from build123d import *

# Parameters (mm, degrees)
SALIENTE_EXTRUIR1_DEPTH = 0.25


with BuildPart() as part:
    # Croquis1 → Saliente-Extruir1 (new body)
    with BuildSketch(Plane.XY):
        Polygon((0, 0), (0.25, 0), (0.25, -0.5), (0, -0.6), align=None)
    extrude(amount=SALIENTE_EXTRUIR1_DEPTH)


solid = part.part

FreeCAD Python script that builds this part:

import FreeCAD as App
import Part
import Sketcher


def add_polygon(sketch, points):
    """Adds a closed chain of lines whose ends are joined by coincident constraints."""
    first, n = sketch.GeometryCount, len(points)
    for a, b in zip(points, points[1:] + points[:1]):
        sketch.addGeometry(Part.LineSegment(App.Vector(*a, 0), App.Vector(*b, 0)), False)
    for i in range(n):
        sketch.addConstraint(Sketcher.Constraint("Coincident", first + i, 2, first + (i + 1) % n, 1))

doc = App.newDocument("Part")
params = doc.addObject("Spreadsheet::Sheet", "Params")
for row, (alias, value) in enumerate([
    ("sketch1_height", "0.6 mm"),
    ("sketch1_height2", "0.5 mm"),
    ("sketch1_width", "0.25 mm"),
    ("pad1_length", "0.25 mm"),
], start=1):
    params.set(f"A{row}", alias)
    params.set(f"B{row}", "=" + value)
    params.setAlias(f"B{row}", alias)

body = doc.addObject("PartDesign::Body", "Body")

# Sketch on XY plane
sketch1 = body.newObject("Sketcher::SketchObject", "Sketch")
sketch1.AttachmentSupport = (doc.getObject("XY_Plane"), [""])
sketch1.MapMode = "FlatFace"
add_polygon(sketch1, [(0.25, 0), (0, 0), (0, -0.6), (0.25, -0.5)])  # lines 0-3
sketch1.addConstraint([
    Sketcher.Constraint("Horizontal", 0),
    Sketcher.Constraint("Vertical", 1),
    Sketcher.Constraint("Vertical", 3),
    Sketcher.Constraint("Coincident", 0, 2, -1, 1),
    Sketcher.Constraint("DistanceY", 1, 2, 1, 1, 0.6),
    Sketcher.Constraint("DistanceY", 3, 1, 3, 2, 0.5),
    Sketcher.Constraint("DistanceX", 0, 2, 0, 1, 0.25),
])
sketch1.setExpression("Constraints[8]", "Params.sketch1_height")
sketch1.setExpression("Constraints[9]", "Params.sketch1_height2")
sketch1.setExpression("Constraints[10]", "Params.sketch1_width")
pad1 = body.newObject("PartDesign::Pad", "Pad")
pad1.Profile = sketch1
pad1.setExpression("Length", "Params.pad1_length")

doc.recompute()
